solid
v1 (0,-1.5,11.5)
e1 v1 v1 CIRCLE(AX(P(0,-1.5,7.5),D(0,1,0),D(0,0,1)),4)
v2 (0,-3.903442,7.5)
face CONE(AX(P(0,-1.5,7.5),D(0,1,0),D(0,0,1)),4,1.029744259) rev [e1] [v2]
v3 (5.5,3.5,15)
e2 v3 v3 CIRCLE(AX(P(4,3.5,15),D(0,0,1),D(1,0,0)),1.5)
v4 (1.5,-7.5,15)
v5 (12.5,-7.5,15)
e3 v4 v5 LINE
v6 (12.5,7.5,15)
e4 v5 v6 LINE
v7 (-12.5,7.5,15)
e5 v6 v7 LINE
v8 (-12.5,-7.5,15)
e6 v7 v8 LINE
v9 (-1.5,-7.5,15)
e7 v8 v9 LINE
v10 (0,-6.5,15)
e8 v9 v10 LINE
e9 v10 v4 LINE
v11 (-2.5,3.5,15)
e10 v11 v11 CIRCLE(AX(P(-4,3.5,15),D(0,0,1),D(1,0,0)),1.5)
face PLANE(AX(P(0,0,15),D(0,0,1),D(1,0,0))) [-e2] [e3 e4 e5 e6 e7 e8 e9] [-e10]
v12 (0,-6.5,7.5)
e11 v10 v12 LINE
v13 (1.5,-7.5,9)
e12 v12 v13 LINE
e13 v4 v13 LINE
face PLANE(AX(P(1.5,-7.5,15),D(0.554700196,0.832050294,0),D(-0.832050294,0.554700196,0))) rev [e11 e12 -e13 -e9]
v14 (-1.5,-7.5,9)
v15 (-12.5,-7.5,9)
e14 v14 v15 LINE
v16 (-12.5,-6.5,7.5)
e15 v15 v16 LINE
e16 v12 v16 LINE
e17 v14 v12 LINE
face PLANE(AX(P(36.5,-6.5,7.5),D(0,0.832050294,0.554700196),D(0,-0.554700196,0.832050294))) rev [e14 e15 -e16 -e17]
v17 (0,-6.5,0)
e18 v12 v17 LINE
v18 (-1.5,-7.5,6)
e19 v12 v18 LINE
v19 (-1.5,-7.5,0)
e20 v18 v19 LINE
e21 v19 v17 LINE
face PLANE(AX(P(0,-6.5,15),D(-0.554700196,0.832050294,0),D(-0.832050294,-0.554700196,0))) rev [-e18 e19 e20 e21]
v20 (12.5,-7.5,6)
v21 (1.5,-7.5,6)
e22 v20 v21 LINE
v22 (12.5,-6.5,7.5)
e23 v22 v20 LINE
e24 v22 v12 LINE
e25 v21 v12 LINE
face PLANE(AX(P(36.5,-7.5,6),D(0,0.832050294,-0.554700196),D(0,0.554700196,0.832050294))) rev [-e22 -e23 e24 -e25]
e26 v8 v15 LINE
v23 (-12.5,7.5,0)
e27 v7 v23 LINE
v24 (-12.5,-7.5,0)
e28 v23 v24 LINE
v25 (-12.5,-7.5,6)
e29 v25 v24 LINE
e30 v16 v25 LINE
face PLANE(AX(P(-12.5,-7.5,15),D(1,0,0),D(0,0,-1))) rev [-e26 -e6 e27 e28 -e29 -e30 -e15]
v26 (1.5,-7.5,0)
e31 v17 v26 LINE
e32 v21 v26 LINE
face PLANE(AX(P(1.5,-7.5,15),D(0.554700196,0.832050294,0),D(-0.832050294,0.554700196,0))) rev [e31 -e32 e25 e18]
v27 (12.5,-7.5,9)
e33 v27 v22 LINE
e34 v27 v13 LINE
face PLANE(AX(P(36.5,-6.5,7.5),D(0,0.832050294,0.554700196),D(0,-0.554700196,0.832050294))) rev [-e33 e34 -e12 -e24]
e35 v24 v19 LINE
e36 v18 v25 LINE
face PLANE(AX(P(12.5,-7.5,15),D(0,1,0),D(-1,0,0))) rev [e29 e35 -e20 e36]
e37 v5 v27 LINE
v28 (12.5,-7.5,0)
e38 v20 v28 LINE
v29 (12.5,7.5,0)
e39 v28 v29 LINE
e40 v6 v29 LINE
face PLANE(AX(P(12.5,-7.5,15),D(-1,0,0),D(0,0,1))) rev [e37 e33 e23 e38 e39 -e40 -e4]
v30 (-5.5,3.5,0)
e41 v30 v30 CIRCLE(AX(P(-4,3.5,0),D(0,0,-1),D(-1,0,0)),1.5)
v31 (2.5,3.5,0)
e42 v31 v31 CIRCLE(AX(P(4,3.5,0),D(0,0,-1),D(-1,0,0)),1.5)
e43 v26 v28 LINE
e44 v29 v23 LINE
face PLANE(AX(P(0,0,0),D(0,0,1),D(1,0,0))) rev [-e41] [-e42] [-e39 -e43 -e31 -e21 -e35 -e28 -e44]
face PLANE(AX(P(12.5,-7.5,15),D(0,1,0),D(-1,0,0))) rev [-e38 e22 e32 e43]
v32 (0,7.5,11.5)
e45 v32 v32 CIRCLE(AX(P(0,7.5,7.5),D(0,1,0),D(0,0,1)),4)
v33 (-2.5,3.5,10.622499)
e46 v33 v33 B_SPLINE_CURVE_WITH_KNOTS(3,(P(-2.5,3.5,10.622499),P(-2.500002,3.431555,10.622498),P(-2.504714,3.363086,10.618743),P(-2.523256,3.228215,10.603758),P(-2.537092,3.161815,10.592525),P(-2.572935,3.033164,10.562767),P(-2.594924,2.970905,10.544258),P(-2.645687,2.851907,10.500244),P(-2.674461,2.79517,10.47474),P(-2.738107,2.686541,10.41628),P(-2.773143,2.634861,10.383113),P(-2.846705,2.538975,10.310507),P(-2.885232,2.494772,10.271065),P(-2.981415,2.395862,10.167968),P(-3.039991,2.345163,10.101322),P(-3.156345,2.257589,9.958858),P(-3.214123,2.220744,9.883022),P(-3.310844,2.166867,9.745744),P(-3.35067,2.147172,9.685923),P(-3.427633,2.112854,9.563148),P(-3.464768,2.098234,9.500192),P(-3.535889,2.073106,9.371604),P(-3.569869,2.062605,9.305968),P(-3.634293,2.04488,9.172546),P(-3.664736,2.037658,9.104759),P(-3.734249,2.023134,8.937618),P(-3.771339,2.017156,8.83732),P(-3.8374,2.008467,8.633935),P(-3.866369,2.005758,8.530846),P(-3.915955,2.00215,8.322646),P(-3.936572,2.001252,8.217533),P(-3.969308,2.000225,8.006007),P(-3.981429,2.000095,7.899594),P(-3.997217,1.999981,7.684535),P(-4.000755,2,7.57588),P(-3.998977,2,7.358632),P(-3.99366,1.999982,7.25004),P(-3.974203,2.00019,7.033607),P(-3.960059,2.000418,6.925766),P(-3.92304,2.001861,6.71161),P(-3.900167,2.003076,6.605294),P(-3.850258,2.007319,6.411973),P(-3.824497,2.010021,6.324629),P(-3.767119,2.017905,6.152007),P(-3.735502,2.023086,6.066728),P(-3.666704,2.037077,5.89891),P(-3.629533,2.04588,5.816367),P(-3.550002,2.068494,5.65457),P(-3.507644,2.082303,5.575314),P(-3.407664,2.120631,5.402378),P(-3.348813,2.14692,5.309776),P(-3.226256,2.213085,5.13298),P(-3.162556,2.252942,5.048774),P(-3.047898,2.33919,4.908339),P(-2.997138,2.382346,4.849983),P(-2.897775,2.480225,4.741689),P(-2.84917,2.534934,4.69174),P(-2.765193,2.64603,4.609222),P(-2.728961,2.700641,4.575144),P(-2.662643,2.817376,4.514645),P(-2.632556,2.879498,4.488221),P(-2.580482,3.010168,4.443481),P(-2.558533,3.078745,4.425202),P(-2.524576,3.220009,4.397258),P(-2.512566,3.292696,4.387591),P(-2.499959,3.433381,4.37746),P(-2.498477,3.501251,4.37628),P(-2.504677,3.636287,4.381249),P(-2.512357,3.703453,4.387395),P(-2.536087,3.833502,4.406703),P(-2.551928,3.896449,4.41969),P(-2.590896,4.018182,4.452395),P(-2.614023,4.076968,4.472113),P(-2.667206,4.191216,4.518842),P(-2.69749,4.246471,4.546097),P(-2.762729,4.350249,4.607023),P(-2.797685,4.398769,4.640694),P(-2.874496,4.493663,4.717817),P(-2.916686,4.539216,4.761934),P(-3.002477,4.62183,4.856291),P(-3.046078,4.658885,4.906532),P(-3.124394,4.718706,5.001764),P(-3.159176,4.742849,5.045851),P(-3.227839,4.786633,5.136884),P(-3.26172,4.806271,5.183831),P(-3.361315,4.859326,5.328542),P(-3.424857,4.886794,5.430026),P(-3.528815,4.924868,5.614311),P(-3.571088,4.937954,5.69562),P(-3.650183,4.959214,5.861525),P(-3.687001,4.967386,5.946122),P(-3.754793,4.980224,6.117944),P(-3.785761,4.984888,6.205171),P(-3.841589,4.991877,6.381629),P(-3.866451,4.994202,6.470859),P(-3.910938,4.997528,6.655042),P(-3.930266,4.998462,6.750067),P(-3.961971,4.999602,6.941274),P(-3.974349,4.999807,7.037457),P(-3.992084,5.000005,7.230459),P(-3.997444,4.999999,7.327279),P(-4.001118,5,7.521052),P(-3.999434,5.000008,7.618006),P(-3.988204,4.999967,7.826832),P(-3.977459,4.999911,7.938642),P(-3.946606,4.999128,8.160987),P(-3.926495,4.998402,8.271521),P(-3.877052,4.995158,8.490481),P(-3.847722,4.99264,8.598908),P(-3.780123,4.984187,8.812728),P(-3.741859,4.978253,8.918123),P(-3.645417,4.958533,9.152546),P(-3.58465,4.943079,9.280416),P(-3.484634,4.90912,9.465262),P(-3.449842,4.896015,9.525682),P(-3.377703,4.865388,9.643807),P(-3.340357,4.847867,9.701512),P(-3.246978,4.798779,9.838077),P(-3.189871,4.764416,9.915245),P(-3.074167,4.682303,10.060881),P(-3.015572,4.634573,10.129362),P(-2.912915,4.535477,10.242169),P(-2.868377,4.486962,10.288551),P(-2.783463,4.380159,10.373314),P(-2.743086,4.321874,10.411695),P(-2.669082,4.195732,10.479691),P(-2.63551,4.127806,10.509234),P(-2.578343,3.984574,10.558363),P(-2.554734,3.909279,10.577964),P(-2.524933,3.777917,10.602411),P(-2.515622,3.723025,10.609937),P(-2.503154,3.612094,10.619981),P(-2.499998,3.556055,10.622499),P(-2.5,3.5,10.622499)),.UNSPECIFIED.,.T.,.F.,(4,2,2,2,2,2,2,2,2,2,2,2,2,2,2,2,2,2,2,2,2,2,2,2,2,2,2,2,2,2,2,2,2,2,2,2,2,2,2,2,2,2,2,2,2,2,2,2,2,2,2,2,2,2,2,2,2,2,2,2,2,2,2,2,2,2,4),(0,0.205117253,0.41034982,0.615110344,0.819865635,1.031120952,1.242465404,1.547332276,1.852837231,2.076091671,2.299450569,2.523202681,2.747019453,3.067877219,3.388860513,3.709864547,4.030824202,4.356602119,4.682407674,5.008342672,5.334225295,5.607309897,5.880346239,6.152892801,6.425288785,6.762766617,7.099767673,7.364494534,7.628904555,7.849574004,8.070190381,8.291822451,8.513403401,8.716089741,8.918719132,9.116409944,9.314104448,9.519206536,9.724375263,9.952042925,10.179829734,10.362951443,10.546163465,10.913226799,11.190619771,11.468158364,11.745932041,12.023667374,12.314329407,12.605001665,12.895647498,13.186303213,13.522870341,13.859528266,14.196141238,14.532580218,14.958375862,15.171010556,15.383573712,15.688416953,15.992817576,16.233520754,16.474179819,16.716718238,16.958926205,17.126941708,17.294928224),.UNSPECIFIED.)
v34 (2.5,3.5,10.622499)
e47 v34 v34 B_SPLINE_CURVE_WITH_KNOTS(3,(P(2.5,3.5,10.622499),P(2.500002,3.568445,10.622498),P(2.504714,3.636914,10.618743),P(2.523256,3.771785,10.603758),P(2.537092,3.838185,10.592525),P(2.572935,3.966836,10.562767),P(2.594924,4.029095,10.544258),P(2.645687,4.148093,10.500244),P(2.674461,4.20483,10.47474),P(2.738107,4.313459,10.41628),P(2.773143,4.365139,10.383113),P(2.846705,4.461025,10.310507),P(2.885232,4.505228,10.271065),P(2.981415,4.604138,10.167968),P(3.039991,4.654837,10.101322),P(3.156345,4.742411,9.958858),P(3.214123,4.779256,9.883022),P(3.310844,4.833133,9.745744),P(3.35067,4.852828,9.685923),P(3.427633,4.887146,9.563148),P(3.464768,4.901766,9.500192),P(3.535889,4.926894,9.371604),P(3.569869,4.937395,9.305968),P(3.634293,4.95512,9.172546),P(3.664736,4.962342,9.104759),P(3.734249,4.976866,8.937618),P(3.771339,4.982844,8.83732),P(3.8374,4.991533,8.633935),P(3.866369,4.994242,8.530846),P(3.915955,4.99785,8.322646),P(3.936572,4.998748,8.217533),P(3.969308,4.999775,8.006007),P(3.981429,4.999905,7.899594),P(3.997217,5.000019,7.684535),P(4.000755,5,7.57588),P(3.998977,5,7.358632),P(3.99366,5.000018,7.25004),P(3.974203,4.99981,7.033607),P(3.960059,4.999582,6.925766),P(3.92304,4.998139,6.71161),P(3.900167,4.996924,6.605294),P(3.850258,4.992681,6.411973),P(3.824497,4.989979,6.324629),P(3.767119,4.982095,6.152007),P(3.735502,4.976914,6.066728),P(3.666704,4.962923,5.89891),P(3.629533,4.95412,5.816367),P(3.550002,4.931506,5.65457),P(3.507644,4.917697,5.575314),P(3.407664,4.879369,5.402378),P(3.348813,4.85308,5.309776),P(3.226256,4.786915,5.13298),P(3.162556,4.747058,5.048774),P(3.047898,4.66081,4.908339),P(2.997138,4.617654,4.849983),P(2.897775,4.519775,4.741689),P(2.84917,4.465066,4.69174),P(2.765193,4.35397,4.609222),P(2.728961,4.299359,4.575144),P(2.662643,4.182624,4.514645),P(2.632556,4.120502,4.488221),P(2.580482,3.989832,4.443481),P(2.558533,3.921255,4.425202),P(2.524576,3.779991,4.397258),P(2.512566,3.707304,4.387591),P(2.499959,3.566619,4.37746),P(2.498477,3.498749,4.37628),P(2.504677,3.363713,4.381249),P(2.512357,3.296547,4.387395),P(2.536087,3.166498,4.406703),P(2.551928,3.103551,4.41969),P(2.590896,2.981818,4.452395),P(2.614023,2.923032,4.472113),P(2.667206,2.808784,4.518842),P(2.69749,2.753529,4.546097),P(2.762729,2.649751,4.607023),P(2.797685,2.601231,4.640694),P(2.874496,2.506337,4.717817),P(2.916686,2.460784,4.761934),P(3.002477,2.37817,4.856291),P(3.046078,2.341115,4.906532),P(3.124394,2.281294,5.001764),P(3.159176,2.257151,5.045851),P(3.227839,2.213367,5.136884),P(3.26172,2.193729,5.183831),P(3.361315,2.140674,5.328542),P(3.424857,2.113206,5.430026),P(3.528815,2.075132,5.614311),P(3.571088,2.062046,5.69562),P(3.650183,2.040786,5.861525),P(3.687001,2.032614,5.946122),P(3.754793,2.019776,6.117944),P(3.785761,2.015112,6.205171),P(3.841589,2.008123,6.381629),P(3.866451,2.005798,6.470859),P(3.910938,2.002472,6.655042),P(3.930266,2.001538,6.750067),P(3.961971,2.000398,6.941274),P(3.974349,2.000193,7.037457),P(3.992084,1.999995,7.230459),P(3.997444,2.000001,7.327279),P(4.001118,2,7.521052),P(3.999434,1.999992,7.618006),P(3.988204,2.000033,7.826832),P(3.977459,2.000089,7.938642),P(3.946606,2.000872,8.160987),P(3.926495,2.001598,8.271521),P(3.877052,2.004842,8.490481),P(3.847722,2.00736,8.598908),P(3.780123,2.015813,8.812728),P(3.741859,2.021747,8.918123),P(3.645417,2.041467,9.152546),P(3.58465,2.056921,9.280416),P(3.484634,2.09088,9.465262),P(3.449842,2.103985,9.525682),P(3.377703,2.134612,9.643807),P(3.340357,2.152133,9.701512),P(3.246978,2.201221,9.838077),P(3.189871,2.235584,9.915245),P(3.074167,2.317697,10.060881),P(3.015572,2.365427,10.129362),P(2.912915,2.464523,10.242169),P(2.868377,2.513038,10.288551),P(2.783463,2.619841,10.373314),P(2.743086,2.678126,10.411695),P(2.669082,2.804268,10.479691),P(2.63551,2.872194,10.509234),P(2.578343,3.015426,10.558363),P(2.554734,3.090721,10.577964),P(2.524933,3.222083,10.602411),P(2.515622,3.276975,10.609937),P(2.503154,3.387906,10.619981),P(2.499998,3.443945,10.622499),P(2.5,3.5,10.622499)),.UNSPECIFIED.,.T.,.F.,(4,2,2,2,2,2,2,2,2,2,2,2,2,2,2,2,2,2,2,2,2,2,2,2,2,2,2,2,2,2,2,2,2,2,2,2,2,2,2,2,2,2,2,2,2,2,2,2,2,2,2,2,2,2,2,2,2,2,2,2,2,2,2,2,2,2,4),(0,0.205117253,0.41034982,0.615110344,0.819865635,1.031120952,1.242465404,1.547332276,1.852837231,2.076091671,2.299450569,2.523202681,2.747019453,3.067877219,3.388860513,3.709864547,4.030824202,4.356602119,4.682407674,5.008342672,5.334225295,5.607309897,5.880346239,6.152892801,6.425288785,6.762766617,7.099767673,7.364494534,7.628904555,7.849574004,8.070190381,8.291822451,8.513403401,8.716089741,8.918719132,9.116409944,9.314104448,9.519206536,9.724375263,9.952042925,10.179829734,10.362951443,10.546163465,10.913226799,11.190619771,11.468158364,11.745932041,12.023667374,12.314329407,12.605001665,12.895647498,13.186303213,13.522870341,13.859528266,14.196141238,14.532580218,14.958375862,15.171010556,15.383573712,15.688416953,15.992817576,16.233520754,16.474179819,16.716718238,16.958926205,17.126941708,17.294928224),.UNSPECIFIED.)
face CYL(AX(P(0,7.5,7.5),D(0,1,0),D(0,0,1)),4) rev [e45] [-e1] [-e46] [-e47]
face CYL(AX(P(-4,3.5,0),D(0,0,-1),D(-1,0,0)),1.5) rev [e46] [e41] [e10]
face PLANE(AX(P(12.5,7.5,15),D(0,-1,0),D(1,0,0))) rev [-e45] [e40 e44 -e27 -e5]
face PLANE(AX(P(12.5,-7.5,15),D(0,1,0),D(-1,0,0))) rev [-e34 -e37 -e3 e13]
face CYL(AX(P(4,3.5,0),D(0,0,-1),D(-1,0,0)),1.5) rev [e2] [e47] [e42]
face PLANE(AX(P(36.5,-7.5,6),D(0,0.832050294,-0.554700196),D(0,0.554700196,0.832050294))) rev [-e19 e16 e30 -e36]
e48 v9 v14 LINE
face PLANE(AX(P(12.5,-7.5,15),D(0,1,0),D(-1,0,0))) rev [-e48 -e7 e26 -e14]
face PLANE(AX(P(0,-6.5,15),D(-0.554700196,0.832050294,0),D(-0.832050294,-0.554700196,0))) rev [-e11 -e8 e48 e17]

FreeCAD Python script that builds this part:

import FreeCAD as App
import Part
import Sketcher

doc = App.newDocument("Part")
body = doc.addObject("PartDesign::Body", "Body")

# Sketch on XY plane
sketch1 = body.newObject("Sketcher::SketchObject", "Sketch")
sketch1.AttachmentSupport = (doc.getObject("XY_Plane"), [""])
sketch1.MapMode = "FlatFace"
sketch1.addGeometry([
    Part.LineSegment(App.Vector(-12, 8, 0), App.Vector(-12, -8, 0)),
    Part.LineSegment(App.Vector(-12, -8, 0), App.Vector(12, -8, 0)),
    Part.LineSegment(App.Vector(12, -8, 0), App.Vector(12, 8, 0)),
    Part.LineSegment(App.Vector(12, 8, 0), App.Vector(-12, 8, 0)),
], False)
sketch1.addConstraint([
    Sketcher.Constraint("Coincident", 0, 2, 1, 1),
    Sketcher.Constraint("Coincident", 1, 2, 2, 1),
    Sketcher.Constraint("Coincident", 2, 2, 3, 1),
    Sketcher.Constraint("Coincident", 3, 2, 0, 1),
    Sketcher.Constraint("Vertical", 0),
    Sketcher.Constraint("Horizontal", 1),
    Sketcher.Constraint("Vertical", 2),
    Sketcher.Constraint("Horizontal", 3),
    Sketcher.Constraint("Symmetric", 0, 2, 2, 2, -1, 1),
    Sketcher.Constraint("DistanceX", 1, 1, 1, 2, 25.0),
    Sketcher.Constraint("DistanceY", 0, 2, 0, 1, 15.0),
])
pad1 = body.newObject("PartDesign::Pad", "Pad")
pad1.Profile = sketch1
pad1.Length = 15

# Sketch on XY plane
sketch2 = body.newObject("Sketcher::SketchObject", "Sketch001")
sketch2.AttachmentSupport = (doc.getObject("XY_Plane"), [""])
sketch2.MapMode = "FlatFace"
sketch2.addGeometry([
    Part.Circle(App.Vector(-4, 3.5, 0), App.Vector(0, 0, 1), 1.5),
    Part.Circle(App.Vector(4, 3.5, 0), App.Vector(0, 0, 1), 1.5),
], False)
sketch2.addConstraint([
    Sketcher.Constraint("Equal", 0, 1),
    Sketcher.Constraint("Symmetric", 0, 3, 1, 3, -2),
    Sketcher.Constraint("Diameter", 0, 3.0),
    Sketcher.Constraint("DistanceX", 0, 3, -1, 1, 4.0),
    Sketcher.Constraint("DistanceY", -1, 1, 0, 3, 3.5),
])
doc.recompute()
hole = body.newObject("PartDesign::Hole", "Hole")
hole.Profile = sketch2
hole.ThreadType = "None"
hole.Diameter = 3
hole.DepthType = "ThroughAll"
hole.Reversed = True

# Sketch on XY plane
sketch3 = body.newObject("Sketcher::SketchObject", "Sketch002")
sketch3.AttachmentSupport = (doc.getObject("XY_Plane"), [""])
sketch3.MapMode = "FlatFace"
sketch3.addGeometry([
    Part.LineSegment(App.Vector(0, -6.5, 0), App.Vector(1.5, -7.5, 0)),  # 0
    Part.LineSegment(App.Vector(1.5, -7.5, 0), App.Vector(1.5, -8.7, 0)),  # 1
    Part.LineSegment(App.Vector(1.5, -8.7, 0), App.Vector(-1.5, -8.7, 0)),  # 2
    Part.LineSegment(App.Vector(-1.5, -8.7, 0), App.Vector(-1.5, -7.5, 0)),  # 3
    Part.LineSegment(App.Vector(-1.5, -7.5, 0), App.Vector(0, -6.5, 0)),  # 4
], False)
sketch3.addConstraint([
    Sketcher.Constraint("Coincident", 0, 2, 1, 1),
    Sketcher.Constraint("Coincident", 1, 2, 2, 1),
    Sketcher.Constraint("Coincident", 2, 2, 3, 1),
    Sketcher.Constraint("Coincident", 3, 2, 4, 1),
    Sketcher.Constraint("Coincident", 4, 2, 0, 1),
    Sketcher.Constraint("Vertical", 1),
    Sketcher.Constraint("Horizontal", 2),
    Sketcher.Constraint("Vertical", 3),
    Sketcher.Constraint("Symmetric", 0, 2, 3, 2, -2),
    Sketcher.Constraint("PointOnObject", 4, 2, -2),
    Sketcher.Constraint("DistanceX", 2, 2, 2, 1, 3.0),
    Sketcher.Constraint("DistanceY", 0, 2, 4, 2, 1.0),
    Sketcher.Constraint("DistanceY", 0, 2, -1, 1, 7.5),
    Sketcher.Constraint("DistanceY", 1, 2, 1, 1, 1.161877),
])
pocket1 = body.newObject("PartDesign::Pocket", "Pocket")
pocket1.Profile = sketch3
pocket1.Length = 15
pocket1.Reversed = True

# Sketch on YZ plane
sketch4 = body.newObject("Sketcher::SketchObject", "Sketch003")
sketch4.AttachmentSupport = (doc.getObject("YZ_Plane"), [""])
sketch4.MapMode = "FlatFace"
sketch4.AttachmentOffset = App.Placement(App.Vector(0, 0, -12.5), App.Rotation())
sketch4.addGeometry([
    Part.LineSegment(App.Vector(-6.5, 7.5, 0), App.Vector(-7.5, 6, 0)),  # 0
    Part.LineSegment(App.Vector(-7.5, 6, 0), App.Vector(-8.5, 6.1, 0)),  # 1
    Part.LineSegment(App.Vector(-8.5, 6.1, 0), App.Vector(-8.5, 9, 0)),  # 2
    Part.LineSegment(App.Vector(-8.5, 9, 0), App.Vector(-7.5, 9, 0)),  # 3
    Part.LineSegment(App.Vector(-7.5, 9, 0), App.Vector(-6.5, 7.5, 0)),  # 4
], False)
sketch4.addConstraint([
    Sketcher.Constraint("Coincident", 0, 2, 1, 1),
    Sketcher.Constraint("Coincident", 1, 2, 2, 1),
    Sketcher.Constraint("Coincident", 2, 2, 3, 1),
    Sketcher.Constraint("Coincident", 3, 2, 4, 1),
    Sketcher.Constraint("Coincident", 4, 2, 0, 1),
    Sketcher.Constraint("Vertical", 2),
    Sketcher.Constraint("Horizontal", 3),
    Sketcher.Constraint("Vertical", 0, 2, 3, 2),
    Sketcher.Constraint("Equal", 0, 4),
    Sketcher.Constraint("DistanceY", -1, 1, 0, 2, 6.0),
    Sketcher.Constraint("DistanceY", -1, 1, 2, 2, 9.0),
    Sketcher.Constraint("DistanceX", 0, 2, 4, 2, 1.0),
    Sketcher.Constraint("DistanceX", 0, 2, -1, 1, 7.5),
    Sketcher.Constraint("DistanceX", 3, 1, 3, 2, 0.997486),
    Sketcher.Constraint("DistanceY", 2, 1, 2, 2, 2.859546),
])
pocket2 = body.newObject("PartDesign::Pocket", "Pocket001")
pocket2.Profile = sketch4
pocket2.Length = 49
pocket2.Reversed = True

# Sketch on XZ plane
sketch5 = body.newObject("Sketcher::SketchObject", "Sketch004")
sketch5.AttachmentSupport = (doc.getObject("XZ_Plane"), [""])
sketch5.MapMode = "FlatFace"
sketch5.AttachmentOffset = App.Placement(App.Vector(0, 0, -7.5), App.Rotation())
sketch5.addGeometry(Part.Circle(App.Vector(0, 7.5, 0), App.Vector(0, 0, 1), 4), False)
sketch5.addConstraint([
    Sketcher.Constraint("PointOnObject", 0, 3, -2),
    Sketcher.Constraint("Diameter", 0, 8.0),
    Sketcher.Constraint("DistanceY", -1, 1, 0, 3, 7.5),
])
doc.recompute()
hole2 = body.newObject("PartDesign::Hole", "Hole001")
hole2.Profile = sketch5
hole2.ThreadType = "None"
hole2.Diameter = 8
hole2.DepthType = "Dimension"
hole2.Depth = 9
hole2.DrillPoint = "Angled"
hole2.DrillPointAngle = 118
hole2.Reversed = True

doc.recompute()
